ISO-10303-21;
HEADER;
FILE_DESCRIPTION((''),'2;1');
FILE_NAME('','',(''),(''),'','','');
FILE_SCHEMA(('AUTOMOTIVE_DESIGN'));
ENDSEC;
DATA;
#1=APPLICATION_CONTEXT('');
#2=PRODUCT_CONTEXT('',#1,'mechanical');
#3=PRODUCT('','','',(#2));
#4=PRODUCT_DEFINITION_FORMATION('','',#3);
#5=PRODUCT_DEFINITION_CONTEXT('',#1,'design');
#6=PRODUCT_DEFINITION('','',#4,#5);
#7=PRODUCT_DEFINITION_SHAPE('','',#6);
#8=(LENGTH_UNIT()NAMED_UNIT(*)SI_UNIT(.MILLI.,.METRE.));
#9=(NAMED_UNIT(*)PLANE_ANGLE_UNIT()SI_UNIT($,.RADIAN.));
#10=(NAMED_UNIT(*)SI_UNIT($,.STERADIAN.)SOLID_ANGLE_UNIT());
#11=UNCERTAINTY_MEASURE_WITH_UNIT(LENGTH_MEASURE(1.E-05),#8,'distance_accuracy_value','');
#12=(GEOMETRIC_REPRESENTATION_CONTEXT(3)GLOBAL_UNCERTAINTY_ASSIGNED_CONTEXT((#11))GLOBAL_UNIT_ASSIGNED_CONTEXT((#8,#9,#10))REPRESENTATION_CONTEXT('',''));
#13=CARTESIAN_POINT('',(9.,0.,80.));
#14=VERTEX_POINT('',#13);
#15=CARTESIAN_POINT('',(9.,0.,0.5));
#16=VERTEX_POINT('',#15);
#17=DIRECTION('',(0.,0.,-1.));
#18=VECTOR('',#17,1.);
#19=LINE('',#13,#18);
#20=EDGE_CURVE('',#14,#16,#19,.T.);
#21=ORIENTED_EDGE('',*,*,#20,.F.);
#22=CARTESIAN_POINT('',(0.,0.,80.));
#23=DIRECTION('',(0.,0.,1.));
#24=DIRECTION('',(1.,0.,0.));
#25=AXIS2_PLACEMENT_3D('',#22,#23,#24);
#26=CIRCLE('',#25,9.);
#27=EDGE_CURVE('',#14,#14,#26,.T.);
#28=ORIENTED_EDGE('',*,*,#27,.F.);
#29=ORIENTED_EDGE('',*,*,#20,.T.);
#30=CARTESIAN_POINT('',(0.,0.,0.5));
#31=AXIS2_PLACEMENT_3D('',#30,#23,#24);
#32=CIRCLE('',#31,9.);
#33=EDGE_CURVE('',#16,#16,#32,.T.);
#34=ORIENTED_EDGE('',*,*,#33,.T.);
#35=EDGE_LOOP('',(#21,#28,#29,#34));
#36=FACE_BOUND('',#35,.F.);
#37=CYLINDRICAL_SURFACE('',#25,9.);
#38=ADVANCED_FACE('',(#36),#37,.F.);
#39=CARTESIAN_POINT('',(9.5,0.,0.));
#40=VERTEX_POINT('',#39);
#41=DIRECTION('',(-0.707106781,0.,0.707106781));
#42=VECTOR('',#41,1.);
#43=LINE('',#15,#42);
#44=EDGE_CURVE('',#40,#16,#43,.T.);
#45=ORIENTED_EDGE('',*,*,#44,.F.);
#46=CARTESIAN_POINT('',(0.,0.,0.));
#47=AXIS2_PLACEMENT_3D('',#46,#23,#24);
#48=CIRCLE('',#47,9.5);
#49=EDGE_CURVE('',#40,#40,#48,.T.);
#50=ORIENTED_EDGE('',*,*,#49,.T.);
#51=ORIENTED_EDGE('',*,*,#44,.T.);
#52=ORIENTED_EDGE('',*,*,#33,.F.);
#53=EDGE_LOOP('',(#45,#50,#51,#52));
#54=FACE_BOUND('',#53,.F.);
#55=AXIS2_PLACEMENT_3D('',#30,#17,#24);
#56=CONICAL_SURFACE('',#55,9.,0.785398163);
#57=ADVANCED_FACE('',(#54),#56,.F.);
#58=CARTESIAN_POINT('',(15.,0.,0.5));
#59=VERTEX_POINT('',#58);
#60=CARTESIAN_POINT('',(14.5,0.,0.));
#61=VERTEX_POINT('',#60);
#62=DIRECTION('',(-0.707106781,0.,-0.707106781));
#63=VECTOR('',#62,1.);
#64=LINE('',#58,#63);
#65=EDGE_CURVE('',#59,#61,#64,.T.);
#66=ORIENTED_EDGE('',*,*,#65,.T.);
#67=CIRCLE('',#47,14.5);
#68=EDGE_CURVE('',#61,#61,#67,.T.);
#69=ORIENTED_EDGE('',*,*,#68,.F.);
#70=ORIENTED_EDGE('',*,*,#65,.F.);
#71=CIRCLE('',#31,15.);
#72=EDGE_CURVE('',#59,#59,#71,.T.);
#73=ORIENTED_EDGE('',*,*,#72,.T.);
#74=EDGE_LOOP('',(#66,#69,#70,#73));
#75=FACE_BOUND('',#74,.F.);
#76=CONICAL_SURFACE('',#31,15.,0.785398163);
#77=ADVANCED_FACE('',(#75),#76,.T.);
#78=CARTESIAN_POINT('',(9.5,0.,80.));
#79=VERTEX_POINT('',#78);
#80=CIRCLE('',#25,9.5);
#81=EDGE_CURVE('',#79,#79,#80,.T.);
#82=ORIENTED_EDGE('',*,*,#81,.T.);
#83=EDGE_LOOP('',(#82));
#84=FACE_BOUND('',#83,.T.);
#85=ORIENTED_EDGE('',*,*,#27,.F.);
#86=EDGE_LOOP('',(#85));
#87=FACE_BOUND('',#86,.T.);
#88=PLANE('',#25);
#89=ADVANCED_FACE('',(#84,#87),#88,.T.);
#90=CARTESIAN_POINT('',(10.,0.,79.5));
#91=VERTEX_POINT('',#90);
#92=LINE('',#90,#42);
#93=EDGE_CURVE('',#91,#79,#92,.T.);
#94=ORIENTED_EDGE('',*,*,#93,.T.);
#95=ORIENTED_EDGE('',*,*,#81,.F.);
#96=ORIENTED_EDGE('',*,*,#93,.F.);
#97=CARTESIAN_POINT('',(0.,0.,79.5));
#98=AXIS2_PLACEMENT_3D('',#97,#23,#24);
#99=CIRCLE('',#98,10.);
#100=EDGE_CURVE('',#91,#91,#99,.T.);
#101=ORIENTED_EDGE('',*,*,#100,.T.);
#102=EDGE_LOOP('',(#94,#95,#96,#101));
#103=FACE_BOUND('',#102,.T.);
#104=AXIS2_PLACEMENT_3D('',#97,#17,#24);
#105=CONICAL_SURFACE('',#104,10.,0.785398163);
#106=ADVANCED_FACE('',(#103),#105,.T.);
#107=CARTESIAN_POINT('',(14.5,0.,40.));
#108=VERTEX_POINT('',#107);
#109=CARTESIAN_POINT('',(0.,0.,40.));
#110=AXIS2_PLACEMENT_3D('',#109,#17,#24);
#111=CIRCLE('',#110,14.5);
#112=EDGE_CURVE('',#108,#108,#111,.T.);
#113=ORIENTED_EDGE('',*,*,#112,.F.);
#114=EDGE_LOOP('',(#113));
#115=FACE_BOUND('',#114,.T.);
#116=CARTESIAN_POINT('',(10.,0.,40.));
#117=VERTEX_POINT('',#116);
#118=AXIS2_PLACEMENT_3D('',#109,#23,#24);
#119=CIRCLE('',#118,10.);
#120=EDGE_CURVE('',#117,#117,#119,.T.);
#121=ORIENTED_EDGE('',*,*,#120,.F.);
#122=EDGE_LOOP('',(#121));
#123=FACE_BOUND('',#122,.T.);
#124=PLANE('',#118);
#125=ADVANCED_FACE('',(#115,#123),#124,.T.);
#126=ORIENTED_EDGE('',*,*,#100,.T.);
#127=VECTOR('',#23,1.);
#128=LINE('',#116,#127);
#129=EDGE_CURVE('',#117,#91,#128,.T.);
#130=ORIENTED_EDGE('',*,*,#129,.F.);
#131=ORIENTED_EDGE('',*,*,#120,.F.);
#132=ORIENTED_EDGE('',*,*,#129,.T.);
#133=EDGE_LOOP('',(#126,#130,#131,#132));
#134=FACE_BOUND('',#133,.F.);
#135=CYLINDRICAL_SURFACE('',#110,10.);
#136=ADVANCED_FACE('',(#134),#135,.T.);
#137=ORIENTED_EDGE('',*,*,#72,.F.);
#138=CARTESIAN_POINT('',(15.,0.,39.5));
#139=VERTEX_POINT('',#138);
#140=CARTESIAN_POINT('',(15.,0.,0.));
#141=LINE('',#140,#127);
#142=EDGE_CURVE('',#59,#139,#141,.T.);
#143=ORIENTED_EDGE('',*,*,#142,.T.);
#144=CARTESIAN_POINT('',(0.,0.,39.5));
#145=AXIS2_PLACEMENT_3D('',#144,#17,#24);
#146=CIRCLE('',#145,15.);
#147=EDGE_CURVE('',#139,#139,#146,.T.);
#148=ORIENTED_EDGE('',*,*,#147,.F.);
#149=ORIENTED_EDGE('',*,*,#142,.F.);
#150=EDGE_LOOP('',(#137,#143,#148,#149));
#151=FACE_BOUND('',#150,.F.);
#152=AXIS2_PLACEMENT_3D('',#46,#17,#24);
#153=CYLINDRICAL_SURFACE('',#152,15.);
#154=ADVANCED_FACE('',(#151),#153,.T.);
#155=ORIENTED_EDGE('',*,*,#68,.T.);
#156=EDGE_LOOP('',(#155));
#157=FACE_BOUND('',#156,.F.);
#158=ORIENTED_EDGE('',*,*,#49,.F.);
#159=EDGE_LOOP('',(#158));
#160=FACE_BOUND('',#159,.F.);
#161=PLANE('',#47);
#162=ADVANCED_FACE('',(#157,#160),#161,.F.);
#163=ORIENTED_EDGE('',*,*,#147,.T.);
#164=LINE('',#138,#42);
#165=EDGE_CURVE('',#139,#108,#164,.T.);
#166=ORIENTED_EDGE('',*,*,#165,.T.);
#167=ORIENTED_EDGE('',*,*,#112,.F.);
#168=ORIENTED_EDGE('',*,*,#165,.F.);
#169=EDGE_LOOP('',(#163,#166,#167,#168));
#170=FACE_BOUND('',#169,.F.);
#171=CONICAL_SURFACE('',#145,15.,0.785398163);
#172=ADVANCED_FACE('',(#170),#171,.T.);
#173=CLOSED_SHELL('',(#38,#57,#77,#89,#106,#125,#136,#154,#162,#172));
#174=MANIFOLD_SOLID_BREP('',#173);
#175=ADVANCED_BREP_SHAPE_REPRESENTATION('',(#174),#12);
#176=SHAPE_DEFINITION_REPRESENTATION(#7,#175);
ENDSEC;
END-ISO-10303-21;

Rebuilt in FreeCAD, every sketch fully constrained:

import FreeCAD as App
import Part
import Sketcher


def edges_at(feature, points):
    """Names of the edges that pass closest to the given points."""
    edges = feature.Shape.Edges
    near = lambda p: min(range(len(edges)), key=lambda i: edges[i].distToShape(Part.Vertex(*p))[0])
    return sorted({f"Edge{near(p) + 1}" for p in points})

doc = App.newDocument("Part")
body = doc.addObject("PartDesign::Body", "Body")

sketch1 = body.newObject("Sketcher::SketchObject", "Sketch")
sketch1.AttachmentSupport = (doc.getObject("XY_Plane"), [""])
sketch1.MapMode = "FlatFace"
sketch1.addGeometry(Part.Circle(App.Vector(0, 0, 0), App.Vector(0, 0, 1), 15), False)
sketch1.addConstraint([
    Sketcher.Constraint("Coincident", 0, 3, -1, 1),
    Sketcher.Constraint("Diameter", 0, 30.0),
])
pad1 = body.newObject("PartDesign::Pad", "Pad")
pad1.Profile = sketch1
pad1.Length = 40

sketch2 = body.newObject("Sketcher::SketchObject", "Sketch001")
sketch2.AttachmentSupport = (doc.getObject("XY_Plane"), [""])
sketch2.MapMode = "FlatFace"
sketch2.AttachmentOffset = App.Placement(App.Vector(0, 0, 40), App.Rotation())
sketch2.addGeometry(Part.Circle(App.Vector(0, 0, 0), App.Vector(0, 0, 1), 10), False)
sketch2.addConstraint([
    Sketcher.Constraint("Coincident", 0, 3, -1, 1),
    Sketcher.Constraint("Diameter", 0, 20.0),
])
pad2 = body.newObject("PartDesign::Pad", "Pad001")
pad2.Profile = sketch2
pad2.Length = 40
doc.recompute()

chamfer = body.newObject("PartDesign::Chamfer", "Chamfer")
chamfer.Base = (pad2, edges_at(pad2, [(-15, 0, 40)]))
chamfer.Size = 0.5

sketch3 = body.newObject("Sketcher::SketchObject", "Sketch002")
sketch3.AttachmentSupport = (doc.getObject("XY_Plane"), [""])
sketch3.MapMode = "FlatFace"
sketch3.AttachmentOffset = App.Placement(App.Vector(0, 0, 80), App.Rotation())
sketch3.addGeometry(Part.Circle(App.Vector(0, 0, 0), App.Vector(0, 0, 1), 9), False)
sketch3.addConstraint([
    Sketcher.Constraint("Coincident", 0, 3, -1, 1),
    Sketcher.Constraint("Diameter", 0, 18.0),
])
pocket1 = body.newObject("PartDesign::Pocket", "Pocket")
pocket1.Profile = sketch3
pocket1.Length = 80
doc.recompute()

chamfer2 = body.newObject("PartDesign::Chamfer", "Chamfer001")
chamfer2.Base = (pocket1, edges_at(pocket1, [(-10, 0, 80), (-9, 0, 0), (-15, 0, 0)]))
chamfer2.Size = 0.5

doc.recompute()
